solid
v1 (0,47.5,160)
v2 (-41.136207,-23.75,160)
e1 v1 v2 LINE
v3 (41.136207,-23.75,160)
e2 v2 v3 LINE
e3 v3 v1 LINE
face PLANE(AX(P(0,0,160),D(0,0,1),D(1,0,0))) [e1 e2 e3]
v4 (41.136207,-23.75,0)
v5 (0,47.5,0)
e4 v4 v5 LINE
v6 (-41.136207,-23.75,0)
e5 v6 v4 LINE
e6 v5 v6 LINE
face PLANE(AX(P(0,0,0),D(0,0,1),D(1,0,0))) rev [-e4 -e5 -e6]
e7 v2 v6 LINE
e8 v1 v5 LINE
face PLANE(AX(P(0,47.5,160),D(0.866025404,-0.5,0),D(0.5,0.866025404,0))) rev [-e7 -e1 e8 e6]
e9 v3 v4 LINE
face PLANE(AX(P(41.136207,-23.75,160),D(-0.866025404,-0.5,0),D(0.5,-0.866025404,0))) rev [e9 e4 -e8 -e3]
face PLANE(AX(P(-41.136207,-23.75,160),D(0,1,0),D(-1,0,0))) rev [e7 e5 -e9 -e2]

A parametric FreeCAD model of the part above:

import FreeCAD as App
import Part
import Sketcher
from FreeCAD import Vector
Q = App.Units.Quantity


def add_polygon(sketch, points):
    """Adds a closed chain of lines whose ends are joined by coincident constraints."""
    first, n = sketch.GeometryCount, len(points)
    for a, b in zip(points, points[1:] + points[:1]):
        sketch.addGeometry(Part.LineSegment(App.Vector(*a, 0), App.Vector(*b, 0)), False)
    for i in range(n):
        sketch.addConstraint(Sketcher.Constraint("Coincident", first + i, 2, first + (i + 1) % n, 1))

doc = App.newDocument("Part")
body = doc.addObject("PartDesign::Body", "Body")

sketch1 = doc.addObject("Sketcher::SketchObject", "Sketch")
body.addObject(sketch1)
sketch1.AttachmentSupport = (doc.XY_Plane, [""])
sketch1.MapMode = "FlatFace"
add_polygon(sketch1, [(0, 47.5), (-41.136207, -23.75), (41.136207, -23.75)])
sketch1.addConstraint([
    Sketcher.Constraint("Horizontal", 1),
    Sketcher.Constraint("PointOnObject", 2, 2, -2),
    Sketcher.Constraint("Equal", 0, 2),
    Sketcher.Constraint("Angle", 0, Q("-120 deg")),
    Sketcher.Constraint("DistanceY", -1, 1, 2, 2, Q("47.5 mm")),
    Sketcher.Constraint("DistanceY", 0, 2, -1, 1, Q("23.75 mm")),
])
pad1 = doc.addObject("PartDesign::Pad", "Pad")
body.addObject(pad1)
pad1.Profile = sketch1
pad1.Length = 160

doc.recompute()
